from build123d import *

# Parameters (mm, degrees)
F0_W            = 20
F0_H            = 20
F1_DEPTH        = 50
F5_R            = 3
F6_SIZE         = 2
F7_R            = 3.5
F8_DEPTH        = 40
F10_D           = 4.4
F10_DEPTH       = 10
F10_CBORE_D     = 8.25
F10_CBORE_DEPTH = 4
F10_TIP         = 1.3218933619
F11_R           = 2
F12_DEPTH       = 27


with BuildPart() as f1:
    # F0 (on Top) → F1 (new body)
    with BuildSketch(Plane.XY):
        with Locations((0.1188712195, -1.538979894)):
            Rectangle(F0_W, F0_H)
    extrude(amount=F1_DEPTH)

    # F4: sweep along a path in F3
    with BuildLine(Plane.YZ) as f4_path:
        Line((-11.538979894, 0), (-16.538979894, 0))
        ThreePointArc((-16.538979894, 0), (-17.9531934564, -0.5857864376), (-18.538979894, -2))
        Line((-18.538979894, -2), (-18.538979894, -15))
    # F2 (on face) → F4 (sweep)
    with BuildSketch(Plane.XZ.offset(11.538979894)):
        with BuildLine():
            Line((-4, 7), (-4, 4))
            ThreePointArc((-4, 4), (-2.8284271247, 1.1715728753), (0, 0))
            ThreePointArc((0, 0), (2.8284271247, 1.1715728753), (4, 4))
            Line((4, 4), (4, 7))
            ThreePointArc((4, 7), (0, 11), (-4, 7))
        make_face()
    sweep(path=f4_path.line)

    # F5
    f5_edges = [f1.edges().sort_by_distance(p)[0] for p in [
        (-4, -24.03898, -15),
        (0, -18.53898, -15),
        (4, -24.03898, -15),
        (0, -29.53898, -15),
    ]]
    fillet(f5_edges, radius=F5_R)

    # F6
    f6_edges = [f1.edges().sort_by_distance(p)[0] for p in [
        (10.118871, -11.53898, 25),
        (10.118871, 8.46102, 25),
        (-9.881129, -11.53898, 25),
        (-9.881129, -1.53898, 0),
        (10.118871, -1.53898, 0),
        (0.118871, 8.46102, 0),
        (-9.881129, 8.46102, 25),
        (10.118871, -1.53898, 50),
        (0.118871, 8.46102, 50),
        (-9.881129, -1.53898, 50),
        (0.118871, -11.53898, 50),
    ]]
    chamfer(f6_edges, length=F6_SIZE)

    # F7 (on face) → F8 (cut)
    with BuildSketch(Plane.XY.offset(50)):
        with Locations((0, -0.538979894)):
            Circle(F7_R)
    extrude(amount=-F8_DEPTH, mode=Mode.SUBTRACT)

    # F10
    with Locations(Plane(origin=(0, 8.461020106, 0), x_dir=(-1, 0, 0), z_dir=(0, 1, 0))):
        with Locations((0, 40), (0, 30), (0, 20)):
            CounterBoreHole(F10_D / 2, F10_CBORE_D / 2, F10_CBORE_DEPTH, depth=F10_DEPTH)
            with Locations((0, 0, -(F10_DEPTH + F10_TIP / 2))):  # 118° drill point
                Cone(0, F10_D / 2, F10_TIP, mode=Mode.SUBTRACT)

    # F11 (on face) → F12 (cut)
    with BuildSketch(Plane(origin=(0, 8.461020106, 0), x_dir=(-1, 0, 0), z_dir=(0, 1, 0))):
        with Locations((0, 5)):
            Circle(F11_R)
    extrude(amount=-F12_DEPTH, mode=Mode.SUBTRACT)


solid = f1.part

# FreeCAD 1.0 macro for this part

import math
import FreeCAD as App
import Part
import Sketcher

V = App.Vector
Q = App.Units.Quantity


def edges_at(feature, points):
    """Names of the edges that pass closest to the given points."""
    edges = feature.Shape.Edges
    near = lambda p: min(range(len(edges)), key=lambda i: edges[i].distToShape(Part.Vertex(*p))[0])
    return sorted({f"Edge{near(p) + 1}" for p in points})


def add_polygon(sketch, points):
    """Adds a closed chain of lines whose ends are joined by coincident constraints."""
    first, n = sketch.GeometryCount, len(points)
    for a, b in zip(points, points[1:] + points[:1]):
        sketch.addGeometry(Part.LineSegment(App.Vector(*a, 0), App.Vector(*b, 0)), False)
    for i in range(n):
        sketch.addConstraint(Sketcher.Constraint("Coincident", first + i, 2, first + (i + 1) % n, 1))

doc = App.newDocument("Part")
body = doc.addObject("PartDesign::Body", "Body")

sketch1 = doc.addObject("Sketcher::SketchObject", "Sketch")
body.addObject(sketch1)
sketch1.AttachmentSupport = (doc.XY_Plane, [""])
sketch1.MapMode = "FlatFace"
add_polygon(sketch1, [(-10, 8), (-10, -12), (10, -12), (10, 8)])
sketch1.addConstraint([
    Sketcher.Constraint("Vertical", 0),
    Sketcher.Constraint("Horizontal", 1),
    Sketcher.Constraint("Vertical", 2),
    Sketcher.Constraint("Horizontal", 3),
    Sketcher.Constraint("Equal", 3, 0),
    Sketcher.Constraint("DistanceX", 1, 1, 1, 2, Q("20 mm")),
    Sketcher.Constraint("DistanceX", 0, 2, -1, 1, Q("9.881129 mm")),
    Sketcher.Constraint("DistanceY", 0, 2, -1, 1, Q("11.53898 mm")),
])
pad1 = doc.addObject("PartDesign::Pad", "Pad")
body.addObject(pad1)
pad1.Profile = sketch1
pad1.Length = 50

sketch2 = doc.addObject("Sketcher::SketchObject", "Sketch001")
body.addObject(sketch2)
sketch2.AttachmentSupport = (doc.XZ_Plane, [""])
sketch2.MapMode = "FlatFace"
sketch2.AttachmentOffset = App.Placement(V(0, 0, 11.53898), App.Rotation())
sketch2.addGeometry([
    Part.LineSegment(V(-4, 7, 0), V(-4, 4, 0)),
    Part.ArcOfCircle(Part.Circle(V(0, 4, 0), V(0, 0, 1), 4), math.radians(180), math.radians(270)),
    Part.ArcOfCircle(Part.Circle(V(0, 4, 0), V(0, 0, 1), 4), math.radians(-90), math.radians(0)),
    Part.LineSegment(V(4, 4, 0), V(4, 7, 0)),
    Part.ArcOfCircle(Part.Circle(V(0, 7, 0), V(0, 0, 1), 4), math.radians(0), math.radians(180)),
], False)
sketch2.addConstraint([
    Sketcher.Constraint("Tangent", 0, 2, 1, 1),
    Sketcher.Constraint("Tangent", 1, 2, 2, 1),
    Sketcher.Constraint("Tangent", 2, 2, 3, 1),
    Sketcher.Constraint("Tangent", 3, 2, 4, 1),
    Sketcher.Constraint("Tangent", 4, 2, 0, 1),
    Sketcher.Constraint("Vertical", 0),
    Sketcher.Constraint("Vertical", 3),
    Sketcher.Constraint("Coincident", 1, 2, -1, 1),
    Sketcher.Constraint("Equal", 1, 2),
    Sketcher.Constraint("PointOnObject", 1, 3, -2),
    Sketcher.Constraint("Radius", 1, Q("4 mm")),
    Sketcher.Constraint("DistanceY", 0, 2, 0, 1, Q("3 mm")),
])

sketch3 = doc.addObject("Sketcher::SketchObject", "Sketch002")
body.addObject(sketch3)
sketch3.AttachmentSupport = (doc.YZ_Plane, [""])
sketch3.MapMode = "FlatFace"
sketch3.addGeometry([
    Part.LineSegment(V(-11.5, 0, 0), V(-16.5, 0, 0)),
    Part.ArcOfCircle(Part.Circle(V(-16.5, -2, 0), V(0, 0, 1), 2), math.radians(90), math.radians(180)),
    Part.LineSegment(V(-18.5, -2, 0), V(-18.5, -15, 0)),
], False)
sketch3.addConstraint([
    Sketcher.Constraint("Tangent", 0, 2, 1, 1),
    Sketcher.Constraint("Tangent", 1, 2, 2, 1),
    Sketcher.Constraint("Horizontal", 0),
    Sketcher.Constraint("Vertical", 2),
    Sketcher.Constraint("PointOnObject", 0, 1, -1),
    Sketcher.Constraint("Radius", 1, Q("2 mm")),
    Sketcher.Constraint("DistanceX", 0, 2, 0, 1, Q("5 mm")),
    Sketcher.Constraint("DistanceY", 2, 2, 2, 1, Q("13 mm")),
    Sketcher.Constraint("DistanceX", 1, 3, -1, 1, Q("16.53898 mm")),
])
doc.recompute()

additivepipe = doc.addObject("PartDesign::AdditivePipe", "AdditivePipe")
body.addObject(additivepipe)
additivepipe.Profile = sketch2
additivepipe.Spine = (sketch3, ["Edge1", "Edge2", "Edge3"])
doc.recompute()

fillet = doc.addObject("PartDesign::Fillet", "Fillet")
body.addObject(fillet)
fillet.Base = (additivepipe, edges_at(additivepipe, [
    (-4, -24.039, -15),
    (0, -18.539, -8.5),
    (4, -24.039, -15),
    (0, -29.539, -15),
]))
fillet.Radius = 3
doc.recompute()

chamfer = doc.addObject("PartDesign::Chamfer", "Chamfer")
body.addObject(chamfer)
chamfer.Base = (fillet, edges_at(fillet, [
    (10.119, -11.539, 25),
    (10.119, 8.461, 25),
    (-9.881, -11.539, 25),
    (-9.881, -1.539, 0),
    (10.119, -1.539, 0),
    (0.119, 8.461, 0),
    (-9.881, 8.461, 25),
    (10.119, -1.539, 50),
    (0.119, 8.461, 50),
    (-9.881, -1.539, 50),
    (0.119, -11.539, 50),
]))
chamfer.Size = 2

sketch4 = doc.addObject("Sketcher::SketchObject", "Sketch003")
body.addObject(sketch4)
sketch4.AttachmentSupport = (doc.XY_Plane, [""])
sketch4.MapMode = "FlatFace"
sketch4.AttachmentOffset = App.Placement(V(0, 0, 50), App.Rotation())
sketch4.addGeometry(Part.Circle(V(0, -0.5, 0), V(0, 0, 1), 3.5), False)
sketch4.addConstraint([
    Sketcher.Constraint("PointOnObject", 0, 3, -2),
    Sketcher.Constraint("Diameter", 0, Q("7 mm")),
    Sketcher.Constraint("DistanceY", 0, 3, -1, 1, Q("0.53898 mm")),
])
pocket1 = doc.addObject("PartDesign::Pocket", "Pocket")
body.addObject(pocket1)
pocket1.Profile = sketch4
pocket1.Length = 40

sketch5 = doc.addObject("Sketcher::SketchObject", "Sketch004")
body.addObject(sketch5)
sketch5.AttachmentSupport = (doc.XZ_Plane, [""])
sketch5.MapMode = "FlatFace"
sketch5.AttachmentOffset = App.Placement(V(0, 0, -8.46102), App.Rotation())
sketch5.addGeometry([
    Part.Circle(V(0, 40, 0), V(0, 0, 1), 2.2),
    Part.Circle(V(0, 30, 0), V(0, 0, 1), 2.2),
    Part.Circle(V(0, 20, 0), V(0, 0, 1), 2.2),
], False)
sketch5.addConstraint([
    Sketcher.Constraint("Equal", 0, 1),
    Sketcher.Constraint("Equal", 1, 2),
    Sketcher.Constraint("PointOnObject", 0, 3, -2),
    Sketcher.Constraint("PointOnObject", 1, 3, -2),
    Sketcher.Constraint("PointOnObject", 2, 3, -2),
    Sketcher.Constraint("Diameter", 0, Q("4.4 mm")),
    Sketcher.Constraint("DistanceY", -1, 1, 0, 3, Q("40 mm")),
    Sketcher.Constraint("DistanceY", -1, 1, 1, 3, Q("30 mm")),
    Sketcher.Constraint("DistanceY", -1, 1, 2, 3, Q("20 mm")),
])
doc.recompute()
hole = doc.addObject("PartDesign::Hole", "Hole")
body.addObject(hole)
hole.Profile = sketch5
hole.ThreadType = "None"
hole.Diameter = 4.4
hole.DepthType = "Dimension"
hole.Depth = 10
hole.DrillPoint = "Angled"
hole.DrillPointAngle = 118
hole.HoleCutType = "Counterbore"
hole.HoleCutDiameter = 8.25
hole.HoleCutDepth = 4
hole.Reversed = True

sketch6 = doc.addObject("Sketcher::SketchObject", "Sketch005")
body.addObject(sketch6)
sketch6.AttachmentSupport = (doc.XZ_Plane, [""])
sketch6.MapMode = "FlatFace"
sketch6.AttachmentOffset = App.Placement(V(0, 0, -8.46102), App.Rotation())
sketch6.addGeometry(Part.Circle(V(0, 5, 0), V(0, 0, 1), 2), False)
sketch6.addConstraint([
    Sketcher.Constraint("PointOnObject", 0, 3, -2),
    Sketcher.Constraint("Diameter", 0, Q("4 mm")),
    Sketcher.Constraint("DistanceY", -1, 1, 0, 3, Q("5 mm")),
])
pocket2 = doc.addObject("PartDesign::Pocket", "Pocket001")
body.addObject(pocket2)
pocket2.Profile = sketch6
pocket2.Length = 27
pocket2.Reversed = True

doc.recompute()
